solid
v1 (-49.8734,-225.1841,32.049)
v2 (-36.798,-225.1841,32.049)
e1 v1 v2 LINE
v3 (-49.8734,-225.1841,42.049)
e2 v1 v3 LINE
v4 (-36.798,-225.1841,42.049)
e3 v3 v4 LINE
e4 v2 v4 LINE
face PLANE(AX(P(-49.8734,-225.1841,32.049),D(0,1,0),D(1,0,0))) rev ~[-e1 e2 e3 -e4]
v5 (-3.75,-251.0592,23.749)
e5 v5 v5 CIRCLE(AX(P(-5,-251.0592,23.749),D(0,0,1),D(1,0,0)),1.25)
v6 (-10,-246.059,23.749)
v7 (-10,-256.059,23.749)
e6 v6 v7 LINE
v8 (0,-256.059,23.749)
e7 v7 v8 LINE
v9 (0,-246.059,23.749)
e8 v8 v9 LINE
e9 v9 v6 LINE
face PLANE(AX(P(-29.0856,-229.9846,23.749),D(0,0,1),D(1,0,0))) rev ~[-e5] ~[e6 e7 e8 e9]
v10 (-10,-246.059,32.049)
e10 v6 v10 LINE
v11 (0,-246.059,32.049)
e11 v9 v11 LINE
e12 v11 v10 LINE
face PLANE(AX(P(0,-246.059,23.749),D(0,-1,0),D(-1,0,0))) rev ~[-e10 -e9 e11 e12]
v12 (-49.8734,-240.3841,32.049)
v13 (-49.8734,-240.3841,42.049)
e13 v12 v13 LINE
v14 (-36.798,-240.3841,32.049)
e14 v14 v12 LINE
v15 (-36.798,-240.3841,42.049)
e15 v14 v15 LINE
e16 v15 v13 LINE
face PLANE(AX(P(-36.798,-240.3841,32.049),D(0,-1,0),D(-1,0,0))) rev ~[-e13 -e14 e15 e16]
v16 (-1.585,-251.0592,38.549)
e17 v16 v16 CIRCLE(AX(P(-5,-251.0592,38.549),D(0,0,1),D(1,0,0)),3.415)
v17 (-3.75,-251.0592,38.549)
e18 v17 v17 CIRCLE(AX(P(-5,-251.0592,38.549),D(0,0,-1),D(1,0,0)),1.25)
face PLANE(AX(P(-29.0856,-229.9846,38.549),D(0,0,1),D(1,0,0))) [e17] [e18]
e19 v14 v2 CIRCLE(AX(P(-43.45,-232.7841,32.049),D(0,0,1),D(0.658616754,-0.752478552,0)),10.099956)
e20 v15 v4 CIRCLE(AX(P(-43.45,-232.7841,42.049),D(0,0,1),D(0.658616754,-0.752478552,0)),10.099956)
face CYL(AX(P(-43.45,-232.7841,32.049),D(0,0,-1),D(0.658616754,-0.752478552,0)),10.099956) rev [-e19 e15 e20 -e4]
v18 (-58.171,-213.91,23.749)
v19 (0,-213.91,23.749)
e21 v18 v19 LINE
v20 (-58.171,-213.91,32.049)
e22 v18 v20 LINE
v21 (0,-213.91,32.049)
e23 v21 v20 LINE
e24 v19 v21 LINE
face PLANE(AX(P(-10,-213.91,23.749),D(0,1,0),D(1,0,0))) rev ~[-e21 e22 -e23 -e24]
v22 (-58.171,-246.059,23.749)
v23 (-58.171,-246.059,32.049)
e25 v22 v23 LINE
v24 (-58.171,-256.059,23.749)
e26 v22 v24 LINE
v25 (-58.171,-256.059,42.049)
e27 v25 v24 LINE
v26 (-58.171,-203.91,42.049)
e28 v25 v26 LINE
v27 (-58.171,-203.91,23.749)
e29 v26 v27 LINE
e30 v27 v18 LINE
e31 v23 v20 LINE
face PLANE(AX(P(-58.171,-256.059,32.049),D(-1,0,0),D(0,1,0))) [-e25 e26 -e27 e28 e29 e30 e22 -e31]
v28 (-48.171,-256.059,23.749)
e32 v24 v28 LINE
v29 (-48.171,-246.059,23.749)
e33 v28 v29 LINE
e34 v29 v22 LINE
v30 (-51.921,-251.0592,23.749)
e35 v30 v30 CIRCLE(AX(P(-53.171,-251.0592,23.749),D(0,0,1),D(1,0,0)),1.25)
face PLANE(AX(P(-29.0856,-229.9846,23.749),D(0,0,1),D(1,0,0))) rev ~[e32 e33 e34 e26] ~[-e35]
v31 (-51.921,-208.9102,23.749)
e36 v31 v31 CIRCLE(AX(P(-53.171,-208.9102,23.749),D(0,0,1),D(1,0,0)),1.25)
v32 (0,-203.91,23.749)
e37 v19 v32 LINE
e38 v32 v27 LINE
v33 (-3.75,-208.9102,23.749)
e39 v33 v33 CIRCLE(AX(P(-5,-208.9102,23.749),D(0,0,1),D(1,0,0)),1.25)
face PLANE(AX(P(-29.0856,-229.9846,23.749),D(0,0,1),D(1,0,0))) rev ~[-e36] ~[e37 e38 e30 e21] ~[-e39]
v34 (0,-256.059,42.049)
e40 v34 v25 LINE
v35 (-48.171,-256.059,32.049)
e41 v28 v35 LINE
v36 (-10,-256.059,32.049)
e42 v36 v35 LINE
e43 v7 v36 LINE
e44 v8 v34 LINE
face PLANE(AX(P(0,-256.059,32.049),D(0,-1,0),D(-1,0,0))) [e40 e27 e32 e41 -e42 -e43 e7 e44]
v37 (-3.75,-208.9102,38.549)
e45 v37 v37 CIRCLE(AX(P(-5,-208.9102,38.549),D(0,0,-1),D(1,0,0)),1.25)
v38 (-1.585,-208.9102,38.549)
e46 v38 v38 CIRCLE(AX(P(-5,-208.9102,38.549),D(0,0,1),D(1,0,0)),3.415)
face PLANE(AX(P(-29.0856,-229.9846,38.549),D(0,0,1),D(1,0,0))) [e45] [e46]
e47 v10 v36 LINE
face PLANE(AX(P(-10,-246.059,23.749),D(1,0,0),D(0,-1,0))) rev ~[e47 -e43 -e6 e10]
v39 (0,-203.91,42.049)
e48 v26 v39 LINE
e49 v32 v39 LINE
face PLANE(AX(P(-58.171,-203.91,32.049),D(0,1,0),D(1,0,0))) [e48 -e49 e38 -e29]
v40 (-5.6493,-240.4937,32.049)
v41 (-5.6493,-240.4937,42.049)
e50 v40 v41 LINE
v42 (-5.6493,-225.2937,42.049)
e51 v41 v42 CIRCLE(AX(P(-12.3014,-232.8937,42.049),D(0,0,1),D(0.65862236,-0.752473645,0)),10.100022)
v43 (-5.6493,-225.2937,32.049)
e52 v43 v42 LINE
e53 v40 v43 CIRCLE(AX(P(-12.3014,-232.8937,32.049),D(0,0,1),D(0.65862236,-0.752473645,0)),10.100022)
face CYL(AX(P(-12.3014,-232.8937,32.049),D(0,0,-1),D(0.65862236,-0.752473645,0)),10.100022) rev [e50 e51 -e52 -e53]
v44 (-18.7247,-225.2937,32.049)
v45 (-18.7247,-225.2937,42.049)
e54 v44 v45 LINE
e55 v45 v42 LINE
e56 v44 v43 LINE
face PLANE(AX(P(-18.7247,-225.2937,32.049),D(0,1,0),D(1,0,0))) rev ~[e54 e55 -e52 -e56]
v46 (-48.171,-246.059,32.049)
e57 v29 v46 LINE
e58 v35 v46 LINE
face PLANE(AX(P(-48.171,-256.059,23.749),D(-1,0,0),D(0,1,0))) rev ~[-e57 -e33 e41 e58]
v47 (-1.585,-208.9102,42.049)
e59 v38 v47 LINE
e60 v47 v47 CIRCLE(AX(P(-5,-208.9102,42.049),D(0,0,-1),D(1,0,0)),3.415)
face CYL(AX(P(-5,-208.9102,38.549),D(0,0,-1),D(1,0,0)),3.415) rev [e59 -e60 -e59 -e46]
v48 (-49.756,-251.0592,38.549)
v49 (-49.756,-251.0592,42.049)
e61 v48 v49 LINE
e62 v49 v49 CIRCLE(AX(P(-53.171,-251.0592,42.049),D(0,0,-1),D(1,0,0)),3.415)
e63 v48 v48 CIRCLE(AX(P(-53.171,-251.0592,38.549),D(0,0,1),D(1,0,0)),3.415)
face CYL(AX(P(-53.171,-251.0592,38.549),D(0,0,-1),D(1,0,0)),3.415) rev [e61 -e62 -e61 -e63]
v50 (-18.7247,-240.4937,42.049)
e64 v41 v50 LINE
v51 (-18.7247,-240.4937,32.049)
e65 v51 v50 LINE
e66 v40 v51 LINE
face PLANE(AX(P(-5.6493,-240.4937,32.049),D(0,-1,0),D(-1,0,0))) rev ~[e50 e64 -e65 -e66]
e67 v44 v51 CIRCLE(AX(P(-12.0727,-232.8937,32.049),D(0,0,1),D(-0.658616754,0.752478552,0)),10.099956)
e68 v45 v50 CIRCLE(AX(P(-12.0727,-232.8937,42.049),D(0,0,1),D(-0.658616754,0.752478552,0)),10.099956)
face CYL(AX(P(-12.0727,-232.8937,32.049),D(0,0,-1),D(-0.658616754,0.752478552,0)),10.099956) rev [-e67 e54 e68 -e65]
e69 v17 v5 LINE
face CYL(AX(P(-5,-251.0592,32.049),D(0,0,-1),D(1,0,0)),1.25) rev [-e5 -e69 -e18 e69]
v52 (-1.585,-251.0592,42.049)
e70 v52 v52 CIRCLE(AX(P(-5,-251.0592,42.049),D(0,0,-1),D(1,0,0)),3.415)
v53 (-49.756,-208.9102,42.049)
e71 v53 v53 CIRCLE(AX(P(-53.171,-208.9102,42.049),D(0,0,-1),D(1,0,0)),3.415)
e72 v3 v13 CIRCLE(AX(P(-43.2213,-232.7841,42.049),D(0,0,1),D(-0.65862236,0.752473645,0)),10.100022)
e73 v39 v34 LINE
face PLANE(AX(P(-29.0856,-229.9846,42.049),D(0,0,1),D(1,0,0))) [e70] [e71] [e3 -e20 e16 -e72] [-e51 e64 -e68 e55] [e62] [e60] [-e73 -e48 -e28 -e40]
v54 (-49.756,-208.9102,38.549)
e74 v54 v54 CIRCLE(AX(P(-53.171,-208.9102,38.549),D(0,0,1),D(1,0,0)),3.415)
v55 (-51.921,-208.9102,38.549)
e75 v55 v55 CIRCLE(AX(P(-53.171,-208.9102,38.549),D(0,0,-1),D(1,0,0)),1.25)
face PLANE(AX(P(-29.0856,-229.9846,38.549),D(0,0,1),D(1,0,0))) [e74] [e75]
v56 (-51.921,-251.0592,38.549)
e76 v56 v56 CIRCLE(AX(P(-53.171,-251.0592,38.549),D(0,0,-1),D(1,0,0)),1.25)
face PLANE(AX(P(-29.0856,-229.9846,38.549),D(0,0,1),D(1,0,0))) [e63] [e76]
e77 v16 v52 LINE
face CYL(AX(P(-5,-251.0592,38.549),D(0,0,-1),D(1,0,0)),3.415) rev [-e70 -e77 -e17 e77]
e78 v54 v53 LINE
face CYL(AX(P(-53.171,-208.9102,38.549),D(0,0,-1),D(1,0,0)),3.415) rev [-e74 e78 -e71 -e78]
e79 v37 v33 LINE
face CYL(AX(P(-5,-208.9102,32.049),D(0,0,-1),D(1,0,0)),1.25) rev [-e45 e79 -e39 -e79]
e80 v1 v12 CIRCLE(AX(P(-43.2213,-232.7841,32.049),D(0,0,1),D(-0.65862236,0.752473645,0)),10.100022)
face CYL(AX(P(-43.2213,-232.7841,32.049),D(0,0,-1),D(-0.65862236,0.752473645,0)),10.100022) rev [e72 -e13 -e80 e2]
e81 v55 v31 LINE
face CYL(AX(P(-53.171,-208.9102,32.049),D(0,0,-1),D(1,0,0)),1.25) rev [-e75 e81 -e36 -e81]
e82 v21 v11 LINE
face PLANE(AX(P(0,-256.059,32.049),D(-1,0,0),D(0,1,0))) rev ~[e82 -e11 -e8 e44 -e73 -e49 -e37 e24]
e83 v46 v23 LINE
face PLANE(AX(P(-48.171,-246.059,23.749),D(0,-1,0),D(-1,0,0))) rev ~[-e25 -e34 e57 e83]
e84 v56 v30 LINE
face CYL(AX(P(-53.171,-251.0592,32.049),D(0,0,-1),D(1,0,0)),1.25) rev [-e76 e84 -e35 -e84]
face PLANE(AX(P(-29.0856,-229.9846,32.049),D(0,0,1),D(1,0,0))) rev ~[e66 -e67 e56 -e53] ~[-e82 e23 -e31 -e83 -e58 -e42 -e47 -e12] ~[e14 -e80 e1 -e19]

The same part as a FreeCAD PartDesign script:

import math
import FreeCAD as App
import Part
import Sketcher
Q = App.Units.Quantity

doc = App.newDocument("Part")
body = doc.addObject("PartDesign::Body", "Body")
body.AllowCompound = True

# Sketch on XY plane
sketch1 = body.newObject("Sketcher::SketchObject", "Sketch")
sketch1.AttachmentSupport = (doc.getObject("XY_Plane"), [""])
sketch1.MapMode = "FlatFace"
sketch1.AttachmentOffset = App.Placement(App.Vector(0, 0, 23.749), App.Rotation())
sketch1.addGeometry([
    Part.LineSegment(App.Vector(0, -213.9, 0), App.Vector(0, -203.9, 0)),  # 0
    Part.LineSegment(App.Vector(0, -203.9, 0), App.Vector(-58.2, -203.9, 0)),  # 1
    Part.LineSegment(App.Vector(-58.2, -203.9, 0), App.Vector(-58.2, -213.9, 0)),  # 2
    Part.LineSegment(App.Vector(-58.2, -213.9, 0), App.Vector(0, -213.9, 0)),  # 3
    Part.Circle(App.Vector(-5, -208.9, 0), App.Vector(0, 0, 1), 1.2),  # 4
    Part.Circle(App.Vector(-53.2, -208.9, 0), App.Vector(0, 0, 1), 1.2),  # 5
    Part.LineSegment(App.Vector(-10, -246.1, 0), App.Vector(-10, -256.1, 0)),  # 6
    Part.LineSegment(App.Vector(-10, -256.1, 0), App.Vector(0, -256.1, 0)),  # 7
    Part.LineSegment(App.Vector(0, -256.1, 0), App.Vector(0, -246.1, 0)),  # 8
    Part.LineSegment(App.Vector(0, -246.1, 0), App.Vector(-10, -246.1, 0)),  # 9
    Part.Circle(App.Vector(-5, -251.1, 0), App.Vector(0, 0, 1), 1.2),  # 10
    Part.LineSegment(App.Vector(-58.2, -246.1, 0), App.Vector(-58.2, -256.1, 0)),  # 11
    Part.LineSegment(App.Vector(-58.2, -256.1, 0), App.Vector(-48.2, -256.1, 0)),  # 12
    Part.LineSegment(App.Vector(-48.2, -256.1, 0), App.Vector(-48.2, -246.1, 0)),  # 13
    Part.LineSegment(App.Vector(-48.2, -246.1, 0), App.Vector(-58.2, -246.1, 0)),  # 14
    Part.Circle(App.Vector(-53.2, -251.1, 0), App.Vector(0, 0, 1), 1.2),  # 15
], False)
sketch1.addConstraint([
    Sketcher.Constraint("Coincident", 0, 2, 1, 1),
    Sketcher.Constraint("Coincident", 1, 2, 2, 1),
    Sketcher.Constraint("Coincident", 2, 2, 3, 1),
    Sketcher.Constraint("Coincident", 3, 2, 0, 1),
    Sketcher.Constraint("Coincident", 6, 2, 7, 1),
    Sketcher.Constraint("Coincident", 7, 2, 8, 1),
    Sketcher.Constraint("Coincident", 8, 2, 9, 1),
    Sketcher.Constraint("Coincident", 9, 2, 6, 1),
    Sketcher.Constraint("Coincident", 11, 2, 12, 1),
    Sketcher.Constraint("Coincident", 12, 2, 13, 1),
    Sketcher.Constraint("Coincident", 13, 2, 14, 1),
    Sketcher.Constraint("Coincident", 14, 2, 11, 1),
    Sketcher.Constraint("Vertical", 0),
    Sketcher.Constraint("Horizontal", 1),
    Sketcher.Constraint("Vertical", 2),
    Sketcher.Constraint("Horizontal", 3),
    Sketcher.Constraint("Vertical", 6),
    Sketcher.Constraint("Horizontal", 7),
    Sketcher.Constraint("Vertical", 8),
    Sketcher.Constraint("Horizontal", 9),
    Sketcher.Constraint("Vertical", 11),
    Sketcher.Constraint("Horizontal", 12),
    Sketcher.Constraint("Vertical", 13),
    Sketcher.Constraint("Horizontal", 14),
    Sketcher.Constraint("Equal", 4, 5),
    Sketcher.Constraint("Equal", 5, 10),
    Sketcher.Constraint("Equal", 10, 15),
    Sketcher.Constraint("PointOnObject", 0, 2, -2),
    Sketcher.Constraint("PointOnObject", 7, 2, -2),
    Sketcher.Constraint("Horizontal", 4, 3, 5, 3),
    Sketcher.Constraint("Horizontal", 10, 3, 15, 3),
    Sketcher.Constraint("Horizontal", 7, 2, 11, 2),
    Sketcher.Constraint("Horizontal", 9, 2, 13, 2),
    Sketcher.Constraint("Vertical", 4, 3, 10, 3),
    Sketcher.Constraint("Vertical", 5, 3, 15, 3),
    Sketcher.Constraint("Vertical", 2, 2, 11, 2),
    Sketcher.Constraint("Equal", 9, 12),
    Sketcher.Constraint("Equal", 14, 0),
    Sketcher.Constraint("Equal", 2, 6),
    Sketcher.Constraint("DistanceX", 7, 1, 7, 2, Q("10 mm")),
    Sketcher.Constraint("Diameter", 4, Q("2.5 mm")),
    Sketcher.Constraint("DistanceX", 4, 3, -1, 1, Q("5 mm")),
    Sketcher.Constraint("DistanceX", 12, 2, -1, 1, Q("48.171 mm")),
    Sketcher.Constraint("DistanceX", 5, 3, 4, 3, Q("48.171 mm")),
    Sketcher.Constraint("DistanceY", 10, 3, 4, 3, Q("42.149 mm")),
    Sketcher.Constraint("DistanceY", 6, 2, 3, 2, Q("42.149 mm")),
    Sketcher.Constraint("DistanceY", 0, 2, -1, 1, Q("203.91 mm")),
    Sketcher.Constraint("DistanceY", 4, 3, -1, 1, Q("208.9102 mm")),
])
pad1 = body.newObject("PartDesign::Pad", "Pad")
pad1.Profile = sketch1
pad1.Length = 8.3

# Sketch on XY plane
sketch2 = body.newObject("Sketcher::SketchObject", "Sketch001")
sketch2.AttachmentSupport = (doc.getObject("XY_Plane"), [""])
sketch2.MapMode = "FlatFace"
sketch2.AttachmentOffset = App.Placement(App.Vector(0, 0, 32.049), App.Rotation())
sketch2.addGeometry([
    Part.LineSegment(App.Vector(-58.2, -256.1, 0), App.Vector(0, -256.1, 0)),  # 0
    Part.LineSegment(App.Vector(0, -256.1, 0), App.Vector(0, -203.9, 0)),  # 1
    Part.LineSegment(App.Vector(0, -203.9, 0), App.Vector(-58.2, -203.9, 0)),  # 2
    Part.LineSegment(App.Vector(-58.2, -203.9, 0), App.Vector(-58.2, -256.1, 0)),  # 3
    Part.Circle(App.Vector(-53.2, -251.1, 0), App.Vector(0, 0, 1), 1.2),  # 4
    Part.ArcOfCircle(Part.Circle(App.Vector(-43.5, -232.8, 0), App.Vector(0, 0, 1), 10.1), math.radians(-49), math.radians(49)),  # 5
    Part.LineSegment(App.Vector(-36.8, -240.4, 0), App.Vector(-49.9, -240.4, 0)),  # 6
    Part.ArcOfCircle(Part.Circle(App.Vector(-43.2, -232.8, 0), App.Vector(0, 0, 1), 10.1), math.radians(131), math.radians(229)),  # 7
    Part.LineSegment(App.Vector(-49.9, -225.2, 0), App.Vector(-36.8, -225.2, 0)),  # 8
    Part.Circle(App.Vector(-5, -251.1, 0), App.Vector(0, 0, 1), 1.2),  # 9
    Part.ArcOfCircle(Part.Circle(App.Vector(-12.3, -232.9, 0), App.Vector(0, 0, 1), 10.1), math.radians(-49), math.radians(49)),  # 10
    Part.LineSegment(App.Vector(-5.6, -240.5, 0), App.Vector(-18.7, -240.5, 0)),  # 11
    Part.ArcOfCircle(Part.Circle(App.Vector(-12.1, -232.9, 0), App.Vector(0, 0, 1), 10.1), math.radians(131), math.radians(229)),  # 12
    Part.LineSegment(App.Vector(-18.7, -225.3, 0), App.Vector(-5.6, -225.3, 0)),  # 13
    Part.Circle(App.Vector(-53.2, -208.9, 0), App.Vector(0, 0, 1), 1.2),  # 14
    Part.Circle(App.Vector(-5, -208.9, 0), App.Vector(0, 0, 1), 1.2),  # 15
], False)
sketch2.addConstraint([
    Sketcher.Constraint("Coincident", 0, 2, 1, 1),
    Sketcher.Constraint("Coincident", 1, 2, 2, 1),
    Sketcher.Constraint("Coincident", 2, 2, 3, 1),
    Sketcher.Constraint("Coincident", 3, 2, 0, 1),
    Sketcher.Constraint("Coincident", 5, 1, 6, 1),
    Sketcher.Constraint("Coincident", 6, 2, 7, 2),
    Sketcher.Constraint("Coincident", 7, 1, 8, 1),
    Sketcher.Constraint("Coincident", 8, 2, 5, 2),
    Sketcher.Constraint("Coincident", 10, 1, 11, 1),
    Sketcher.Constraint("Coincident", 11, 2, 12, 2),
    Sketcher.Constraint("Coincident", 12, 1, 13, 1),
    Sketcher.Constraint("Coincident", 13, 2, 10, 2),
    Sketcher.Constraint("Horizontal", 0),
    Sketcher.Constraint("Vertical", 1),
    Sketcher.Constraint("Horizontal", 2),
    Sketcher.Constraint("Vertical", 3),
    Sketcher.Constraint("Horizontal", 6),
    Sketcher.Constraint("Horizontal", 8),
    Sketcher.Constraint("Horizontal", 11),
    Sketcher.Constraint("Horizontal", 13),
    Sketcher.Constraint("Equal", 5, 7),
    Sketcher.Constraint("Equal", 4, 9),
    Sketcher.Constraint("Equal", 7, 10),
    Sketcher.Constraint("Equal", 10, 12),
    Sketcher.Constraint("Equal", 9, 14),
    Sketcher.Constraint("Equal", 14, 15),
    Sketcher.Constraint("PointOnObject", 0, 2, -2),
    Sketcher.Constraint("Horizontal", 5, 3, 7, 3),
    Sketcher.Constraint("Horizontal", 4, 3, 9, 3),
    Sketcher.Constraint("Horizontal", 10, 3, 12, 3),
    Sketcher.Constraint("Horizontal", 14, 3, 15, 3),
    Sketcher.Constraint("Vertical", 4, 3, 14, 3),
    Sketcher.Constraint("Vertical", 9, 3, 15, 3),
    Sketcher.Constraint("Vertical", 6, 2, 7, 1),
    Sketcher.Constraint("Vertical", 11, 2, 12, 1),
    Sketcher.Constraint("Equal", 8, 11),
    Sketcher.Constraint("Diameter", 4, Q("2.5 mm")),
    Sketcher.Constraint("Radius", 5, Q("10.1 mm")),
    Sketcher.Constraint("DistanceX", 9, 3, -1, 1, Q("5 mm")),
    Sketcher.Constraint("DistanceX", 2, 2, 14, 3, Q("5 mm")),
    Sketcher.Constraint("DistanceY", 5, 1, 7, 3, Q("7.6 mm")),
    Sketcher.Constraint("DistanceY", 10, 1, 12, 3, Q("7.6 mm")),
    Sketcher.Constraint("DistanceX", 0, 1, 0, 2, Q("58.171 mm")),
    Sketcher.Constraint("DistanceY", 1, 1, 1, 2, Q("52.149 mm")),
    Sketcher.Constraint("DistanceX", 5, 3, -1, 1, Q("43.45 mm")),
    Sketcher.Constraint("DistanceY", 1, 2, -1, 1, Q("203.91 mm")),
    Sketcher.Constraint("DistanceX", 7, 3, 10, 3, Q("30.92 mm")),
    Sketcher.Constraint("DistanceX", 6, 2, 6, 1, Q("13.0754 mm")),
    Sketcher.Constraint("DistanceY", 5, 3, -1, 1, Q("232.784 mm")),
    Sketcher.Constraint("DistanceY", 4, 3, 5, 3, Q("18.275 mm")),
    Sketcher.Constraint("DistanceY", 5, 3, 14, 3, Q("23.874 mm")),
    Sketcher.Constraint("DistanceY", 10, 3, -1, 1, Q("232.8937 mm")),
])
pad2 = body.newObject("PartDesign::Pad", "Pad001")
pad2.Profile = sketch2
pad2.Length = 10

# Sketch on XY plane
sketch3 = body.newObject("Sketcher::SketchObject", "Sketch002")
sketch3.AttachmentSupport = (doc.getObject("XY_Plane"), [""])
sketch3.MapMode = "FlatFace"
sketch3.AttachmentOffset = App.Placement(App.Vector(0, 0, 38.549), App.Rotation())
sketch3.addGeometry([
    Part.Circle(App.Vector(-5, -251.1, 0), App.Vector(0, 0, 1), 3.4),
    Part.Circle(App.Vector(-5, -208.9, 0), App.Vector(0, 0, 1), 3.4),
    Part.Circle(App.Vector(-53.2, -251.1, 0), App.Vector(0, 0, 1), 3.4),
    Part.Circle(App.Vector(-53.2, -208.9, 0), App.Vector(0, 0, 1), 3.4),
], False)
sketch3.addConstraint([
    Sketcher.Constraint("Equal", 0, 1),
    Sketcher.Constraint("Equal", 1, 2),
    Sketcher.Constraint("Equal", 2, 3),
    Sketcher.Constraint("Horizontal", 0, 3, 2, 3),
    Sketcher.Constraint("Horizontal", 1, 3, 3, 3),
    Sketcher.Constraint("Vertical", 0, 3, 1, 3),
    Sketcher.Constraint("Vertical", 2, 3, 3, 3),
    Sketcher.Constraint("Diameter", 0, Q("6.83 mm")),
    Sketcher.Constraint("DistanceX", 0, 3, -1, 1, Q("5 mm")),
    Sketcher.Constraint("DistanceY", 0, 3, 1, 3, Q("42.149 mm")),
    Sketcher.Constraint("DistanceX", 2, 3, 0, 3, Q("48.171 mm")),
    Sketcher.Constraint("DistanceY", 0, 3, -1, 1, Q("251.0592 mm")),
])
pocket1 = body.newObject("PartDesign::Pocket", "Pocket")
pocket1.Profile = sketch3
pocket1.Length = 30.75
pocket1.Reversed = True

doc.recompute()
